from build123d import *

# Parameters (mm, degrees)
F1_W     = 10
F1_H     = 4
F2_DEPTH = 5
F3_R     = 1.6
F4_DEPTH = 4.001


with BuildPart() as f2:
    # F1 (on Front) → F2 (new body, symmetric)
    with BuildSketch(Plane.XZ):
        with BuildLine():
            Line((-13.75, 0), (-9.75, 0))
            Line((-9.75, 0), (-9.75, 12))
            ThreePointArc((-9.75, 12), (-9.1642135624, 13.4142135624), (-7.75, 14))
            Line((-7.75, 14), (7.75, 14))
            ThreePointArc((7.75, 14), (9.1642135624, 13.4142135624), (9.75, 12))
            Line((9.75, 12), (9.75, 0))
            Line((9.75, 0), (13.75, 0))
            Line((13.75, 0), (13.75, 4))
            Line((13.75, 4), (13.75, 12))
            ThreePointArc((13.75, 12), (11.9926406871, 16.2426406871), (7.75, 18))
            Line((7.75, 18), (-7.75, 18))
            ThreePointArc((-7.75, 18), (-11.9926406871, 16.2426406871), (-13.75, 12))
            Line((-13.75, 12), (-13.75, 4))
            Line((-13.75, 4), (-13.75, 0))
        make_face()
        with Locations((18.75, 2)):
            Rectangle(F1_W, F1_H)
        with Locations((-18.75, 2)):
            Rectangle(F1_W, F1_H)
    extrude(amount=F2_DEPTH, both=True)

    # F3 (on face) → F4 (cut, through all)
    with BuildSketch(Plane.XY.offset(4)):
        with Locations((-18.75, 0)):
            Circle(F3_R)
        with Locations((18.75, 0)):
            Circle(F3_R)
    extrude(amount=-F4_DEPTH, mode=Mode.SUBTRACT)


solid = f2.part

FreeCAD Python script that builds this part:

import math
import FreeCAD as App
import Part
import Sketcher
from FreeCAD import Vector

doc = App.newDocument("Part")
body = doc.addObject("PartDesign::Body", "Body")

# Sketch on XZ plane
sketch1 = body.newObject("Sketcher::SketchObject", "Sketch")
sketch1.AttachmentSupport = (doc.getObject("XZ_Plane"), [""])
sketch1.MapMode = "FlatFace"
sketch1.addGeometry([
    Part.LineSegment(Vector(-9.8, 0, 0), Vector(-9.8, 12, 0)),  # 0
    Part.ArcOfCircle(Part.Circle(Vector(-7.8, 12, 0), Vector(0, 0, 1), 2), math.radians(90), math.radians(180)),  # 1
    Part.LineSegment(Vector(-7.8, 14, 0), Vector(7.8, 14, 0)),  # 2
    Part.ArcOfCircle(Part.Circle(Vector(7.8, 12, 0), Vector(0, 0, 1), 2), math.radians(0), math.radians(90)),  # 3
    Part.LineSegment(Vector(9.8, 12, 0), Vector(9.8, 0, 0)),  # 4
    Part.LineSegment(Vector(9.8, 0, 0), Vector(23.8, 0, 0)),  # 5
    Part.LineSegment(Vector(23.8, 0, 0), Vector(23.8, 4, 0)),  # 6
    Part.LineSegment(Vector(23.8, 4, 0), Vector(13.8, 4, 0)),  # 7
    Part.LineSegment(Vector(13.8, 4, 0), Vector(13.8, 12, 0)),  # 8
    Part.ArcOfCircle(Part.Circle(Vector(7.8, 12, 0), Vector(0, 0, 1), 6), math.radians(0), math.radians(90)),  # 9
    Part.LineSegment(Vector(7.8, 18, 0), Vector(-7.8, 18, 0)),  # 10
    Part.ArcOfCircle(Part.Circle(Vector(-7.8, 12, 0), Vector(0, 0, 1), 6), math.radians(90), math.radians(180)),  # 11
    Part.LineSegment(Vector(-13.8, 12, 0), Vector(-13.8, 4, 0)),  # 12
    Part.LineSegment(Vector(-13.8, 4, 0), Vector(-23.8, 4, 0)),  # 13
    Part.LineSegment(Vector(-23.8, 4, 0), Vector(-23.8, 0, 0)),  # 14
    Part.LineSegment(Vector(-23.8, 0, 0), Vector(-9.8, 0, 0)),  # 15
], False)
sketch1.addConstraint([
    Sketcher.Constraint("Tangent", 0, 2, 1, 2),
    Sketcher.Constraint("Tangent", 1, 1, 2, 1),
    Sketcher.Constraint("Tangent", 2, 2, 3, 2),
    Sketcher.Constraint("Tangent", 3, 1, 4, 1),
    Sketcher.Constraint("Coincident", 4, 2, 5, 1),
    Sketcher.Constraint("Coincident", 5, 2, 6, 1),
    Sketcher.Constraint("Coincident", 6, 2, 7, 1),
    Sketcher.Constraint("Coincident", 7, 2, 8, 1),
    Sketcher.Constraint("Tangent", 8, 2, 9, 1),
    Sketcher.Constraint("Tangent", 9, 2, 10, 1),
    Sketcher.Constraint("Tangent", 10, 2, 11, 1),
    Sketcher.Constraint("Tangent", 11, 2, 12, 1),
    Sketcher.Constraint("Coincident", 12, 2, 13, 1),
    Sketcher.Constraint("Coincident", 13, 2, 14, 1),
    Sketcher.Constraint("Coincident", 14, 2, 15, 1),
    Sketcher.Constraint("Coincident", 15, 2, 0, 1),
    Sketcher.Constraint("Vertical", 0),
    Sketcher.Constraint("Horizontal", 2),
    Sketcher.Constraint("Vertical", 4),
    Sketcher.Constraint("Horizontal", 5),
    Sketcher.Constraint("Vertical", 6),
    Sketcher.Constraint("Horizontal", 7),
    Sketcher.Constraint("Vertical", 8),
    Sketcher.Constraint("Horizontal", 10),
    Sketcher.Constraint("Vertical", 12),
    Sketcher.Constraint("Horizontal", 13),
    Sketcher.Constraint("Vertical", 14),
    Sketcher.Constraint("Horizontal", 15),
    Sketcher.Constraint("Coincident", 9, 3, 3, 3),
    Sketcher.Constraint("Coincident", 11, 3, 1, 3),
    Sketcher.Constraint("Equal", 1, 3),
    Sketcher.Constraint("Symmetric", 5, 2, 14, 2, -1, 1),
    Sketcher.Constraint("Symmetric", 7, 2, 12, 2, -2),
    Sketcher.Constraint("PointOnObject", 4, 2, -1),
    Sketcher.Constraint("Radius", 1, 2.0),
    Sketcher.Constraint("Radius", 9, 6.0),
    Sketcher.Constraint("DistanceX", 5, 1, 5, 2, 14.0),
    Sketcher.Constraint("DistanceY", 0, 1, 0, 2, 12.0),
    Sketcher.Constraint("DistanceY", 6, 1, 6, 2, 4.0),
    Sketcher.Constraint("DistanceX", 2, 1, 2, 2, 15.5),
])
pad1 = body.newObject("PartDesign::Pad", "Pad")
pad1.Profile = sketch1
pad1.Length = 10
pad1.Midplane = True

# Sketch on XY plane
sketch2 = body.newObject("Sketcher::SketchObject", "Sketch001")
sketch2.AttachmentSupport = (doc.getObject("XY_Plane"), [""])
sketch2.MapMode = "FlatFace"
sketch2.AttachmentOffset = App.Placement(Vector(0, 0, 4), App.Rotation())
sketch2.addGeometry([
    Part.Circle(Vector(-18.8, 0, 0), Vector(0, 0, 1), 1.6),
    Part.Circle(Vector(18.8, 0, 0), Vector(0, 0, 1), 1.6),
], False)
sketch2.addConstraint([
    Sketcher.Constraint("Equal", 0, 1),
    Sketcher.Constraint("Symmetric", 0, 3, 1, 3, -1, 1),
    Sketcher.Constraint("PointOnObject", 0, 3, -1),
    Sketcher.Constraint("Diameter", 0, 3.2),
    Sketcher.Constraint("DistanceX", 0, 3, 1, 3, 37.5),
])
pocket1 = body.newObject("PartDesign::Pocket", "Pocket")
pocket1.Profile = sketch2
pocket1.Type = "ThroughAll"

doc.recompute()
